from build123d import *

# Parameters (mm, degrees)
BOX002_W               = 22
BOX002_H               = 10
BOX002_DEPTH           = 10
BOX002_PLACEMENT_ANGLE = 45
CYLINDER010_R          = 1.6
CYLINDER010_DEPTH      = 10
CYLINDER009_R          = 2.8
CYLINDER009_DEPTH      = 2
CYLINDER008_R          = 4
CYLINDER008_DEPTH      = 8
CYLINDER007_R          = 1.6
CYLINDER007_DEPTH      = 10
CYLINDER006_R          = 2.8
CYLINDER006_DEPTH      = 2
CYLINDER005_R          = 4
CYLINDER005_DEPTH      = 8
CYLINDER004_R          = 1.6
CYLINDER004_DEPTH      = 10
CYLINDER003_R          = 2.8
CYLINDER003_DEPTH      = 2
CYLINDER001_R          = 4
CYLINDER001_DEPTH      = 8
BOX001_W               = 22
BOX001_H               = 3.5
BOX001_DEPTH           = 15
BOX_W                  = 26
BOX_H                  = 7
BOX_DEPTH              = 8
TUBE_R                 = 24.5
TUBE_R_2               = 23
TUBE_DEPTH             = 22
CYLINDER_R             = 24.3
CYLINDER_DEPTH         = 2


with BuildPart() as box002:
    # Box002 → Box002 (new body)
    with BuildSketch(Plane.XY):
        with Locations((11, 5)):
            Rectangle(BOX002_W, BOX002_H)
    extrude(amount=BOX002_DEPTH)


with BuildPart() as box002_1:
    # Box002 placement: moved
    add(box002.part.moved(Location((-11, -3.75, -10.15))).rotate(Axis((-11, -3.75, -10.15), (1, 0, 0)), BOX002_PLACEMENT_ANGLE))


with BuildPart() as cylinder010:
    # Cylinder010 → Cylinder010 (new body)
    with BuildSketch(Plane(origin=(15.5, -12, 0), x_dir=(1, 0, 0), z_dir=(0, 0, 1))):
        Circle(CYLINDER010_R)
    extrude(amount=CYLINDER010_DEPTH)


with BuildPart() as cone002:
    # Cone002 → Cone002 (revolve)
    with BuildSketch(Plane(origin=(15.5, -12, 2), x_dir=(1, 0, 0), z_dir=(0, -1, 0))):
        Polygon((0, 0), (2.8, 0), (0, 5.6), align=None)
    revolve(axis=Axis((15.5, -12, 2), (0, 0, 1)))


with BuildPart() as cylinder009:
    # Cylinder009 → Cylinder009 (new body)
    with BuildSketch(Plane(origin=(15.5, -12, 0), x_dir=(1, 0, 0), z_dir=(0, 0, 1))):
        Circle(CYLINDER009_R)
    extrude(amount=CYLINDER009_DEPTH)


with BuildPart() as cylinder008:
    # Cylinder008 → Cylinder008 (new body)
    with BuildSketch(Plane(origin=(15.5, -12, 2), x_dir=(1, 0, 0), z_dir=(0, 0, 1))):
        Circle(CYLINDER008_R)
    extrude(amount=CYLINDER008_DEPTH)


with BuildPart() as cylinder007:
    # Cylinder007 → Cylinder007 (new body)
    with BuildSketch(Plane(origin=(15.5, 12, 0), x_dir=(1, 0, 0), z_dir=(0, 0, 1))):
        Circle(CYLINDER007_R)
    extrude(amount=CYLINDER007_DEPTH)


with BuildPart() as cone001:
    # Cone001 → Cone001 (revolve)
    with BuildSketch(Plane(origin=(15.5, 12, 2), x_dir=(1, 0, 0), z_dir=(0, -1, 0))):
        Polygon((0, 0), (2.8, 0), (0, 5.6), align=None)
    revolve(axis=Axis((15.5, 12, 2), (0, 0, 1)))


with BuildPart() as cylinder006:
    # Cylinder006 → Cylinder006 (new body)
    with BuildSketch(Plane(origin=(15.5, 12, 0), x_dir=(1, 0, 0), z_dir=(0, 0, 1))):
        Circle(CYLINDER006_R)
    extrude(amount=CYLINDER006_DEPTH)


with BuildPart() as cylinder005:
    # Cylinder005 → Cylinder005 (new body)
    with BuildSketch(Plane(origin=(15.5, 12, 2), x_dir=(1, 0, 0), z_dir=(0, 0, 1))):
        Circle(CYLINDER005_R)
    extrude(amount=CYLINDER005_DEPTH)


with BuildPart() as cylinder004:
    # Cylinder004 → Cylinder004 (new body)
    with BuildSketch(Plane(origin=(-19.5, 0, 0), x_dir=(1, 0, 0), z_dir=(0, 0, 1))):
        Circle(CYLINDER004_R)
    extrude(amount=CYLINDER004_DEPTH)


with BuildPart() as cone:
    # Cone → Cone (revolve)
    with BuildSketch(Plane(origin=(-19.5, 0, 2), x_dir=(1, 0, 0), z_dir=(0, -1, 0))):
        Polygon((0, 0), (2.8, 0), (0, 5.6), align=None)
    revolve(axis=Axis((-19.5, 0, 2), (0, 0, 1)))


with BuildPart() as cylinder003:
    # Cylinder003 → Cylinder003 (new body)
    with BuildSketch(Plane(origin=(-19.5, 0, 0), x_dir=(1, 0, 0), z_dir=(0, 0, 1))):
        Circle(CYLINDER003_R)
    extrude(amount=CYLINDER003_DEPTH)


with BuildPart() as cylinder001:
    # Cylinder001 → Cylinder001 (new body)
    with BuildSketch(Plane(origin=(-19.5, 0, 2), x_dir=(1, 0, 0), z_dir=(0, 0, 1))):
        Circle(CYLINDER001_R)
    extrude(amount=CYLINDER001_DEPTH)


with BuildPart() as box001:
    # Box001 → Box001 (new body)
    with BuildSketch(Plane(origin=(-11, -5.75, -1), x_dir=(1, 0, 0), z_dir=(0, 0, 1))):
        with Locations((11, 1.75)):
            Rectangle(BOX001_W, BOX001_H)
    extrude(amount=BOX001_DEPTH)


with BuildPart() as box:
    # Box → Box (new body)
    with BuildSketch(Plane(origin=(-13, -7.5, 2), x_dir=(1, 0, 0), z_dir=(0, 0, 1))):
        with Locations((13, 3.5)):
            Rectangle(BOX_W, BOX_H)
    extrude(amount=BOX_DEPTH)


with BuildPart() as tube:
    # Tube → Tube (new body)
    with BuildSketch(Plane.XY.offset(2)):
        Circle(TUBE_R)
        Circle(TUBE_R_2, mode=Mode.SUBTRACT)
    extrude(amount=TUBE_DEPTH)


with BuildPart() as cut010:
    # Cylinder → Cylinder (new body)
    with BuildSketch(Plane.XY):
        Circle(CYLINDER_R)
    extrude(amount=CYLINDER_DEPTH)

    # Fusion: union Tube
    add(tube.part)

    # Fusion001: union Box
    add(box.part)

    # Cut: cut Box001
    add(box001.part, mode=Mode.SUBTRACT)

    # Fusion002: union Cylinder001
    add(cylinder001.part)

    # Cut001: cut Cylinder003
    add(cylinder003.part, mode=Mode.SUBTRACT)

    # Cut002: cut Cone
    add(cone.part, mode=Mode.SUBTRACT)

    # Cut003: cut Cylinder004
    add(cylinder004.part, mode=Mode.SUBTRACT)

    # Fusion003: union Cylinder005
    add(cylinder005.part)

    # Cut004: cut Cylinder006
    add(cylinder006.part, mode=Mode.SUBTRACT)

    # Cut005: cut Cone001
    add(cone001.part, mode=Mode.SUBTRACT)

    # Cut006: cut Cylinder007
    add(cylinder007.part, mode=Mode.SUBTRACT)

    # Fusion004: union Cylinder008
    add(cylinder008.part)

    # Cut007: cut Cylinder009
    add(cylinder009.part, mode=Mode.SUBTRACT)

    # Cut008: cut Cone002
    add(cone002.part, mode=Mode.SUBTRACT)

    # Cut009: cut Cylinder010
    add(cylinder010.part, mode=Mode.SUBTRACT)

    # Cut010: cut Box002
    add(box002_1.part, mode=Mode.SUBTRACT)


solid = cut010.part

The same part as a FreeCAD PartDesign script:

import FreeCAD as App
import Part
import Sketcher
from FreeCAD import Vector

doc = App.newDocument("Part")
params = doc.addObject("Spreadsheet::Sheet", "Params")
for row, (alias, value) in enumerate([
    ("sketch1_width", "22 mm"),
    ("sketch1_height", "10 mm"),
    ("pad1_length", "10 mm"),
    ("sketch2_diameter", "3.2 mm"),
    ("pad2_length", "10 mm"),
    ("sketch3_width", "2.8 mm"),
    ("sketch3_height", "5.6 mm"),
    ("revolution_angle", "360 deg"),
    ("sketch4_diameter", "5.6 mm"),
    ("pad3_length", "2 mm"),
    ("sketch5_diameter", "8 mm"),
    ("pad4_length", "8 mm"),
    ("sketch6_diameter", "3.2 mm"),
    ("pad5_length", "10 mm"),
    ("sketch7_width", "2.8 mm"),
    ("sketch7_height", "5.6 mm"),
    ("revolution2_angle", "360 deg"),
    ("sketch8_diameter", "5.6 mm"),
    ("pad6_length", "2 mm"),
    ("sketch9_diameter", "8 mm"),
    ("pad7_length", "8 mm"),
    ("sketch10_diameter", "3.2 mm"),
    ("pad8_length", "10 mm"),
    ("sketch11_width", "2.8 mm"),
    ("sketch11_height", "5.6 mm"),
    ("revolution3_angle", "360 deg"),
    ("sketch12_diameter", "5.6 mm"),
    ("pad9_length", "2 mm"),
    ("sketch13_diameter", "8 mm"),
    ("pad10_length", "8 mm"),
    ("sketch14_width", "22 mm"),
    ("sketch14_height", "3.5 mm"),
    ("pad11_length", "15 mm"),
    ("sketch15_width", "26 mm"),
    ("sketch15_height", "7 mm"),
    ("pad12_length", "8 mm"),
    ("sketch16_diameter", "49 mm"),
    ("sketch16_diameter2", "46 mm"),
    ("pad13_length", "22 mm"),
    ("sketch17_diameter", "48.6 mm"),
    ("pad14_length", "2 mm"),
], start=1):
    params.set(f"A{row}", alias)
    params.set(f"B{row}", "=" + value)
    params.setAlias(f"B{row}", alias)

body = doc.addObject("PartDesign::Body", "Body")

# Sketch on XY plane
sketch1 = body.newObject("Sketcher::SketchObject", "Sketch")
sketch1.AttachmentSupport = (doc.getObject("XY_Plane"), [""])
sketch1.MapMode = "FlatFace"
sketch1.addGeometry([
    Part.LineSegment(Vector(0, 10, 0), Vector(0, 0, 0)),
    Part.LineSegment(Vector(0, 0, 0), Vector(22, 0, 0)),
    Part.LineSegment(Vector(22, 0, 0), Vector(22, 10, 0)),
    Part.LineSegment(Vector(22, 10, 0), Vector(0, 10, 0)),
], False)
sketch1.addConstraint([
    Sketcher.Constraint("Coincident", 0, 2, 1, 1),
    Sketcher.Constraint("Coincident", 1, 2, 2, 1),
    Sketcher.Constraint("Coincident", 2, 2, 3, 1),
    Sketcher.Constraint("Coincident", 3, 2, 0, 1),
    Sketcher.Constraint("Vertical", 0),
    Sketcher.Constraint("Horizontal", 1),
    Sketcher.Constraint("Vertical", 2),
    Sketcher.Constraint("Horizontal", 3),
    Sketcher.Constraint("Coincident", 0, 2, -1, 1),
    Sketcher.Constraint("DistanceX", 1, 1, 1, 2, 22.0),
    Sketcher.Constraint("DistanceY", 0, 2, 0, 1, 10.0),
])
sketch1.setExpression("Constraints[9]", "Params.sketch1_width")
sketch1.setExpression("Constraints[10]", "Params.sketch1_height")
pad1 = body.newObject("PartDesign::Pad", "Pad")
pad1.Profile = sketch1
pad1.setExpression("Length", "Params.pad1_length")
body2 = doc.addObject("PartDesign::Body", "Body001")
doc.recompute()

body.Placement = App.Placement(Vector(-11, -3.75, -10.15), App.Rotation(Vector(1, 0, 0), 45))
boolean = body2.newObject("PartDesign::Boolean", "Boolean")
boolean.Type = "Fuse"
boolean.addObjects([body])
body3 = doc.addObject("PartDesign::Body", "Body002")

# Sketch on XY plane
sketch2 = body3.newObject("Sketcher::SketchObject", "Sketch001")
sketch2.AttachmentSupport = (doc.getObject("XY_Plane002"), [""])
sketch2.MapMode = "FlatFace"
sketch2.addGeometry(Part.Circle(Vector(15.5, -12, 0), Vector(0, 0, 1), 1.6), False)
sketch2.addConstraint([
    Sketcher.Constraint("Diameter", 0, 3.2),
    Sketcher.Constraint("DistanceY", 0, 3, -1, 1, 12.0),
    Sketcher.Constraint("DistanceX", -1, 1, 0, 3, 15.5),
])
sketch2.setExpression("Constraints[0]", "Params.sketch2_diameter")
pad2 = body3.newObject("PartDesign::Pad", "Pad001")
pad2.Profile = sketch2
pad2.setExpression("Length", "Params.pad2_length")
body4 = doc.addObject("PartDesign::Body", "Body003")

# Sketch on XZ plane
sketch3 = body4.newObject("Sketcher::SketchObject", "Sketch002")
sketch3.AttachmentSupport = (doc.getObject("XZ_Plane003"), [""])
sketch3.MapMode = "FlatFace"
sketch3.AttachmentOffset = App.Placement(Vector(0, 0, 12), App.Rotation())
sketch3.addGeometry([
    Part.LineSegment(Vector(15.5, 2, 0), Vector(18.3, 2, 0)),
    Part.LineSegment(Vector(18.3, 2, 0), Vector(15.5, 7.6, 0)),
    Part.LineSegment(Vector(15.5, 7.6, 0), Vector(15.5, 2, 0)),
], False)
sketch3.addGeometry(Part.LineSegment(Vector(15.5, 2, 0), Vector(15.5, 7.6, 0)), True)  # axis
sketch3.addConstraint([
    Sketcher.Constraint("Coincident", 0, 2, 1, 1),
    Sketcher.Constraint("Coincident", 1, 2, 2, 1),
    Sketcher.Constraint("Coincident", 2, 2, 0, 1),
    Sketcher.Constraint("Horizontal", 0),
    Sketcher.Constraint("Vertical", 2),
    Sketcher.Constraint("Vertical", 3),
    Sketcher.Constraint("Coincident", 3, 1, 2, 2),
    Sketcher.Constraint("Equal", 2, 3),
    Sketcher.Constraint("DistanceX", 0, 1, 0, 2, 2.8),
    Sketcher.Constraint("DistanceY", 2, 2, 2, 1, 5.6),
    Sketcher.Constraint("DistanceY", -1, 1, 0, 2, 2.0),
    Sketcher.Constraint("DistanceX", -1, 1, 0, 2, 18.3),
])
sketch3.setExpression("Constraints[8]", "Params.sketch3_width")
sketch3.setExpression("Constraints[9]", "Params.sketch3_height")
revolution = body4.newObject("PartDesign::Revolution", "Revolution")
revolution.Profile = sketch3
revolution.ReferenceAxis = (sketch3, ["Axis0"])
revolution.setExpression("Angle", "Params.revolution_angle")
body5 = doc.addObject("PartDesign::Body", "Body004")

# Sketch on XY plane
sketch4 = body5.newObject("Sketcher::SketchObject", "Sketch003")
sketch4.AttachmentSupport = (doc.getObject("XY_Plane004"), [""])
sketch4.MapMode = "FlatFace"
sketch4.addGeometry(Part.Circle(Vector(15.5, -12, 0), Vector(0, 0, 1), 2.8), False)
sketch4.addConstraint([
    Sketcher.Constraint("Diameter", 0, 5.6),
    Sketcher.Constraint("DistanceY", 0, 3, -1, 1, 12.0),
    Sketcher.Constraint("DistanceX", -1, 1, 0, 3, 15.5),
])
sketch4.setExpression("Constraints[0]", "Params.sketch4_diameter")
pad3 = body5.newObject("PartDesign::Pad", "Pad002")
pad3.Profile = sketch4
pad3.setExpression("Length", "Params.pad3_length")
body6 = doc.addObject("PartDesign::Body", "Body005")

# Sketch on XY plane
sketch5 = body6.newObject("Sketcher::SketchObject", "Sketch004")
sketch5.AttachmentSupport = (doc.getObject("XY_Plane005"), [""])
sketch5.MapMode = "FlatFace"
sketch5.AttachmentOffset = App.Placement(Vector(0, 0, 2), App.Rotation())
sketch5.addGeometry(Part.Circle(Vector(15.5, -12, 0), Vector(0, 0, 1), 4), False)
sketch5.addConstraint([
    Sketcher.Constraint("Diameter", 0, 8.0),
    Sketcher.Constraint("DistanceY", 0, 3, -1, 1, 12.0),
    Sketcher.Constraint("DistanceX", -1, 1, 0, 3, 15.5),
])
sketch5.setExpression("Constraints[0]", "Params.sketch5_diameter")
pad4 = body6.newObject("PartDesign::Pad", "Pad003")
pad4.Profile = sketch5
pad4.setExpression("Length", "Params.pad4_length")
body7 = doc.addObject("PartDesign::Body", "Body006")

# Sketch on XY plane
sketch6 = body7.newObject("Sketcher::SketchObject", "Sketch005")
sketch6.AttachmentSupport = (doc.getObject("XY_Plane006"), [""])
sketch6.MapMode = "FlatFace"
sketch6.addGeometry(Part.Circle(Vector(15.5, 12, 0), Vector(0, 0, 1), 1.6), False)
sketch6.addConstraint([
    Sketcher.Constraint("Diameter", 0, 3.2),
    Sketcher.Constraint("DistanceY", -1, 1, 0, 3, 12.0),
    Sketcher.Constraint("DistanceX", -1, 1, 0, 3, 15.5),
])
sketch6.setExpression("Constraints[0]", "Params.sketch6_diameter")
pad5 = body7.newObject("PartDesign::Pad", "Pad004")
pad5.Profile = sketch6
pad5.setExpression("Length", "Params.pad5_length")
body8 = doc.addObject("PartDesign::Body", "Body007")

# Sketch on XZ plane
sketch7 = body8.newObject("Sketcher::SketchObject", "Sketch006")
sketch7.AttachmentSupport = (doc.getObject("XZ_Plane007"), [""])
sketch7.MapMode = "FlatFace"
sketch7.AttachmentOffset = App.Placement(Vector(0, 0, -12), App.Rotation())
sketch7.addGeometry([
    Part.LineSegment(Vector(15.5, 2, 0), Vector(18.3, 2, 0)),
    Part.LineSegment(Vector(18.3, 2, 0), Vector(15.5, 7.6, 0)),
    Part.LineSegment(Vector(15.5, 7.6, 0), Vector(15.5, 2, 0)),
], False)
sketch7.addGeometry(Part.LineSegment(Vector(15.5, 2, 0), Vector(15.5, 7.6, 0)), True)  # axis
sketch7.addConstraint([
    Sketcher.Constraint("Coincident", 0, 2, 1, 1),
    Sketcher.Constraint("Coincident", 1, 2, 2, 1),
    Sketcher.Constraint("Coincident", 2, 2, 0, 1),
    Sketcher.Constraint("Horizontal", 0),
    Sketcher.Constraint("Vertical", 2),
    Sketcher.Constraint("Vertical", 3),
    Sketcher.Constraint("Coincident", 3, 1, 2, 2),
    Sketcher.Constraint("Equal", 2, 3),
    Sketcher.Constraint("DistanceX", 0, 1, 0, 2, 2.8),
    Sketcher.Constraint("DistanceY", 2, 2, 2, 1, 5.6),
    Sketcher.Constraint("DistanceY", -1, 1, 0, 2, 2.0),
    Sketcher.Constraint("DistanceX", -1, 1, 0, 2, 18.3),
])
sketch7.setExpression("Constraints[8]", "Params.sketch7_width")
sketch7.setExpression("Constraints[9]", "Params.sketch7_height")
revolution2 = body8.newObject("PartDesign::Revolution", "Revolution001")
revolution2.Profile = sketch7
revolution2.ReferenceAxis = (sketch7, ["Axis0"])
revolution2.setExpression("Angle", "Params.revolution2_angle")
body9 = doc.addObject("PartDesign::Body", "Body008")

# Sketch on XY plane
sketch8 = body9.newObject("Sketcher::SketchObject", "Sketch007")
sketch8.AttachmentSupport = (doc.getObject("XY_Plane008"), [""])
sketch8.MapMode = "FlatFace"
sketch8.addGeometry(Part.Circle(Vector(15.5, 12, 0), Vector(0, 0, 1), 2.8), False)
sketch8.addConstraint([
    Sketcher.Constraint("Diameter", 0, 5.6),
    Sketcher.Constraint("DistanceY", -1, 1, 0, 3, 12.0),
    Sketcher.Constraint("DistanceX", -1, 1, 0, 3, 15.5),
])
sketch8.setExpression("Constraints[0]", "Params.sketch8_diameter")
pad6 = body9.newObject("PartDesign::Pad", "Pad005")
pad6.Profile = sketch8
pad6.setExpression("Length", "Params.pad6_length")
body10 = doc.addObject("PartDesign::Body", "Body009")

# Sketch on XY plane
sketch9 = body10.newObject("Sketcher::SketchObject", "Sketch008")
sketch9.AttachmentSupport = (doc.getObject("XY_Plane009"), [""])
sketch9.MapMode = "FlatFace"
sketch9.AttachmentOffset = App.Placement(Vector(0, 0, 2), App.Rotation())
sketch9.addGeometry(Part.Circle(Vector(15.5, 12, 0), Vector(0, 0, 1), 4), False)
sketch9.addConstraint([
    Sketcher.Constraint("Diameter", 0, 8.0),
    Sketcher.Constraint("DistanceY", -1, 1, 0, 3, 12.0),
    Sketcher.Constraint("DistanceX", -1, 1, 0, 3, 15.5),
])
sketch9.setExpression("Constraints[0]", "Params.sketch9_diameter")
pad7 = body10.newObject("PartDesign::Pad", "Pad006")
pad7.Profile = sketch9
pad7.setExpression("Length", "Params.pad7_length")
body11 = doc.addObject("PartDesign::Body", "Body010")

# Sketch on XY plane
sketch10 = body11.newObject("Sketcher::SketchObject", "Sketch009")
sketch10.AttachmentSupport = (doc.getObject("XY_Plane010"), [""])
sketch10.MapMode = "FlatFace"
sketch10.addGeometry(Part.Circle(Vector(-19.5, 0, 0), Vector(0, 0, 1), 1.6), False)
sketch10.addConstraint([
    Sketcher.Constraint("PointOnObject", 0, 3, -1),
    Sketcher.Constraint("Diameter", 0, 3.2),
    Sketcher.Constraint("DistanceX", 0, 3, -1, 1, 19.5),
])
sketch10.setExpression("Constraints[1]", "Params.sketch10_diameter")
pad8 = body11.newObject("PartDesign::Pad", "Pad007")
pad8.Profile = sketch10
pad8.setExpression("Length", "Params.pad8_length")
body12 = doc.addObject("PartDesign::Body", "Body011")

# Sketch on XZ plane
sketch11 = body12.newObject("Sketcher::SketchObject", "Sketch010")
sketch11.AttachmentSupport = (doc.getObject("XZ_Plane011"), [""])
sketch11.MapMode = "FlatFace"
sketch11.addGeometry([
    Part.LineSegment(Vector(-19.5, 2, 0), Vector(-16.7, 2, 0)),
    Part.LineSegment(Vector(-16.7, 2, 0), Vector(-19.5, 7.6, 0)),
    Part.LineSegment(Vector(-19.5, 7.6, 0), Vector(-19.5, 2, 0)),
], False)
sketch11.addGeometry(Part.LineSegment(Vector(-19.5, 2, 0), Vector(-19.5, 7.6, 0)), True)  # axis
sketch11.addConstraint([
    Sketcher.Constraint("Coincident", 0, 2, 1, 1),
    Sketcher.Constraint("Coincident", 1, 2, 2, 1),
    Sketcher.Constraint("Coincident", 2, 2, 0, 1),
    Sketcher.Constraint("Horizontal", 0),
    Sketcher.Constraint("Vertical", 2),
    Sketcher.Constraint("Vertical", 3),
    Sketcher.Constraint("Coincident", 3, 1, 2, 2),
    Sketcher.Constraint("Equal", 2, 3),
    Sketcher.Constraint("DistanceX", 0, 1, 0, 2, 2.8),
    Sketcher.Constraint("DistanceY", 2, 2, 2, 1, 5.6),
    Sketcher.Constraint("DistanceY", -1, 1, 0, 2, 2.0),
    Sketcher.Constraint("DistanceX", 0, 2, -1, 1, 16.7),
])
sketch11.setExpression("Constraints[8]", "Params.sketch11_width")
sketch11.setExpression("Constraints[9]", "Params.sketch11_height")
revolution3 = body12.newObject("PartDesign::Revolution", "Revolution002")
revolution3.Profile = sketch11
revolution3.ReferenceAxis = (sketch11, ["Axis0"])
revolution3.setExpression("Angle", "Params.revolution3_angle")
body13 = doc.addObject("PartDesign::Body", "Body012")

# Sketch on XY plane
sketch12 = body13.newObject("Sketcher::SketchObject", "Sketch011")
sketch12.AttachmentSupport = (doc.getObject("XY_Plane012"), [""])
sketch12.MapMode = "FlatFace"
sketch12.addGeometry(Part.Circle(Vector(-19.5, 0, 0), Vector(0, 0, 1), 2.8), False)
sketch12.addConstraint([
    Sketcher.Constraint("PointOnObject", 0, 3, -1),
    Sketcher.Constraint("Diameter", 0, 5.6),
    Sketcher.Constraint("DistanceX", 0, 3, -1, 1, 19.5),
])
sketch12.setExpression("Constraints[1]", "Params.sketch12_diameter")
pad9 = body13.newObject("PartDesign::Pad", "Pad008")
pad9.Profile = sketch12
pad9.setExpression("Length", "Params.pad9_length")
body14 = doc.addObject("PartDesign::Body", "Body013")

# Sketch on XY plane
sketch13 = body14.newObject("Sketcher::SketchObject", "Sketch012")
sketch13.AttachmentSupport = (doc.getObject("XY_Plane013"), [""])
sketch13.MapMode = "FlatFace"
sketch13.AttachmentOffset = App.Placement(Vector(0, 0, 2), App.Rotation())
sketch13.addGeometry(Part.Circle(Vector(-19.5, 0, 0), Vector(0, 0, 1), 4), False)
sketch13.addConstraint([
    Sketcher.Constraint("PointOnObject", 0, 3, -1),
    Sketcher.Constraint("Diameter", 0, 8.0),
    Sketcher.Constraint("DistanceX", 0, 3, -1, 1, 19.5),
])
sketch13.setExpression("Constraints[1]", "Params.sketch13_diameter")
pad10 = body14.newObject("PartDesign::Pad", "Pad009")
pad10.Profile = sketch13
pad10.setExpression("Length", "Params.pad10_length")
body15 = doc.addObject("PartDesign::Body", "Body014")

# Sketch on XY plane
sketch14 = body15.newObject("Sketcher::SketchObject", "Sketch013")
sketch14.AttachmentSupport = (doc.getObject("XY_Plane014"), [""])
sketch14.MapMode = "FlatFace"
sketch14.AttachmentOffset = App.Placement(Vector(0, 0, -1), App.Rotation())
sketch14.addGeometry([
    Part.LineSegment(Vector(-11, -2.2, 0), Vector(-11, -5.8, 0)),
    Part.LineSegment(Vector(-11, -5.8, 0), Vector(11, -5.8, 0)),
    Part.LineSegment(Vector(11, -5.8, 0), Vector(11, -2.2, 0)),
    Part.LineSegment(Vector(11, -2.2, 0), Vector(-11, -2.2, 0)),
], False)
sketch14.addConstraint([
    Sketcher.Constraint("Coincident", 0, 2, 1, 1),
    Sketcher.Constraint("Coincident", 1, 2, 2, 1),
    Sketcher.Constraint("Coincident", 2, 2, 3, 1),
    Sketcher.Constraint("Coincident", 3, 2, 0, 1),
    Sketcher.Constraint("Vertical", 0),
    Sketcher.Constraint("Horizontal", 1),
    Sketcher.Constraint("Vertical", 2),
    Sketcher.Constraint("Horizontal", 3),
    Sketcher.Constraint("DistanceX", 1, 1, 1, 2, 22.0),
    Sketcher.Constraint("DistanceY", 0, 2, 0, 1, 3.5),
    Sketcher.Constraint("DistanceX", 0, 2, -1, 1, 11.0),
    Sketcher.Constraint("DistanceY", 0, 2, -1, 1, 5.75),
])
sketch14.setExpression("Constraints[8]", "Params.sketch14_width")
sketch14.setExpression("Constraints[9]", "Params.sketch14_height")
pad11 = body15.newObject("PartDesign::Pad", "Pad010")
pad11.Profile = sketch14
pad11.setExpression("Length", "Params.pad11_length")
body16 = doc.addObject("PartDesign::Body", "Body015")

# Sketch on XY plane
sketch15 = body16.newObject("Sketcher::SketchObject", "Sketch014")
sketch15.AttachmentSupport = (doc.getObject("XY_Plane015"), [""])
sketch15.MapMode = "FlatFace"
sketch15.AttachmentOffset = App.Placement(Vector(0, 0, 2), App.Rotation())
sketch15.addGeometry([
    Part.LineSegment(Vector(-13, 0, 0), Vector(-13, -8, 0)),
    Part.LineSegment(Vector(-13, -8, 0), Vector(13, -8, 0)),
    Part.LineSegment(Vector(13, -8, 0), Vector(13, 0, 0)),
    Part.LineSegment(Vector(13, 0, 0), Vector(-13, 0, 0)),
], False)
sketch15.addConstraint([
    Sketcher.Constraint("Coincident", 0, 2, 1, 1),
    Sketcher.Constraint("Coincident", 1, 2, 2, 1),
    Sketcher.Constraint("Coincident", 2, 2, 3, 1),
    Sketcher.Constraint("Coincident", 3, 2, 0, 1),
    Sketcher.Constraint("Vertical", 0),
    Sketcher.Constraint("Horizontal", 1),
    Sketcher.Constraint("Vertical", 2),
    Sketcher.Constraint("Horizontal", 3),
    Sketcher.Constraint("DistanceX", 1, 1, 1, 2, 26.0),
    Sketcher.Constraint("DistanceY", 0, 2, 0, 1, 7.0),
    Sketcher.Constraint("DistanceX", 0, 2, -1, 1, 13.0),
    Sketcher.Constraint("DistanceY", 0, 2, -1, 1, 7.5),
])
sketch15.setExpression("Constraints[8]", "Params.sketch15_width")
sketch15.setExpression("Constraints[9]", "Params.sketch15_height")
pad12 = body16.newObject("PartDesign::Pad", "Pad011")
pad12.Profile = sketch15
pad12.setExpression("Length", "Params.pad12_length")
body17 = doc.addObject("PartDesign::Body", "Body016")

# Sketch on XY plane
sketch16 = body17.newObject("Sketcher::SketchObject", "Sketch015")
sketch16.AttachmentSupport = (doc.getObject("XY_Plane016"), [""])
sketch16.MapMode = "FlatFace"
sketch16.AttachmentOffset = App.Placement(Vector(0, 0, 2), App.Rotation())
sketch16.addGeometry([
    Part.Circle(Vector(0, 0, 0), Vector(0, 0, 1), 24),
    Part.Circle(Vector(0, 0, 0), Vector(0, 0, 1), 23),
], False)
sketch16.addConstraint([
    Sketcher.Constraint("Coincident", 0, 3, -1, 1),
    Sketcher.Constraint("Coincident", 1, 3, -1, 1),
    Sketcher.Constraint("Diameter", 0, 49.0),
    Sketcher.Constraint("Diameter", 1, 46.0),
])
sketch16.setExpression("Constraints[2]", "Params.sketch16_diameter")
sketch16.setExpression("Constraints[3]", "Params.sketch16_diameter2")
pad13 = body17.newObject("PartDesign::Pad", "Pad012")
pad13.Profile = sketch16
pad13.setExpression("Length", "Params.pad13_length")
body18 = doc.addObject("PartDesign::Body", "Body017")

# Sketch on XY plane
sketch17 = body18.newObject("Sketcher::SketchObject", "Sketch016")
sketch17.AttachmentSupport = (doc.getObject("XY_Plane017"), [""])
sketch17.MapMode = "FlatFace"
sketch17.addGeometry(Part.Circle(Vector(0, 0, 0), Vector(0, 0, 1), 24), False)
sketch17.addConstraint([
    Sketcher.Constraint("Coincident", 0, 3, -1, 1),
    Sketcher.Constraint("Diameter", 0, 48.6),
])
sketch17.setExpression("Constraints[1]", "Params.sketch17_diameter")
pad14 = body18.newObject("PartDesign::Pad", "Pad013")
pad14.Profile = sketch17
pad14.setExpression("Length", "Params.pad14_length")
doc.recompute()

boolean2 = body18.newObject("PartDesign::Boolean", "Boolean001")
boolean2.Type = "Fuse"
boolean2.addObjects([body17])
doc.recompute()

boolean3 = body18.newObject("PartDesign::Boolean", "Boolean002")
boolean3.Type = "Fuse"
boolean3.addObjects([body16])
doc.recompute()

boolean4 = body18.newObject("PartDesign::Boolean", "Boolean003")
boolean4.Type = "Cut"
boolean4.addObjects([body15])
doc.recompute()

boolean5 = body18.newObject("PartDesign::Boolean", "Boolean004")
boolean5.Type = "Fuse"
boolean5.addObjects([body14])
doc.recompute()

boolean6 = body18.newObject("PartDesign::Boolean", "Boolean005")
boolean6.Type = "Cut"
boolean6.addObjects([body13])
doc.recompute()

boolean7 = body18.newObject("PartDesign::Boolean", "Boolean006")
boolean7.Type = "Cut"
boolean7.addObjects([body12])
doc.recompute()

boolean8 = body18.newObject("PartDesign::Boolean", "Boolean007")
boolean8.Type = "Cut"
boolean8.addObjects([body11])
doc.recompute()

boolean9 = body18.newObject("PartDesign::Boolean", "Boolean008")
boolean9.Type = "Fuse"
boolean9.addObjects([body10])
doc.recompute()

boolean10 = body18.newObject("PartDesign::Boolean", "Boolean009")
boolean10.Type = "Cut"
boolean10.addObjects([body9])
doc.recompute()

boolean11 = body18.newObject("PartDesign::Boolean", "Boolean010")
boolean11.Type = "Cut"
boolean11.addObjects([body8])
doc.recompute()

boolean12 = body18.newObject("PartDesign::Boolean", "Boolean011")
boolean12.Type = "Cut"
boolean12.addObjects([body7])
doc.recompute()

boolean13 = body18.newObject("PartDesign::Boolean", "Boolean012")
boolean13.Type = "Fuse"
boolean13.addObjects([body6])
doc.recompute()

boolean14 = body18.newObject("PartDesign::Boolean", "Boolean013")
boolean14.Type = "Cut"
boolean14.addObjects([body5])
doc.recompute()

boolean15 = body18.newObject("PartDesign::Boolean", "Boolean014")
boolean15.Type = "Cut"
boolean15.addObjects([body4])
doc.recompute()

boolean16 = body18.newObject("PartDesign::Boolean", "Boolean015")
boolean16.Type = "Cut"
boolean16.addObjects([body3])
doc.recompute()

boolean17 = body18.newObject("PartDesign::Boolean", "Boolean016")
boolean17.Type = "Cut"
boolean17.addObjects([body2])

doc.recompute()
